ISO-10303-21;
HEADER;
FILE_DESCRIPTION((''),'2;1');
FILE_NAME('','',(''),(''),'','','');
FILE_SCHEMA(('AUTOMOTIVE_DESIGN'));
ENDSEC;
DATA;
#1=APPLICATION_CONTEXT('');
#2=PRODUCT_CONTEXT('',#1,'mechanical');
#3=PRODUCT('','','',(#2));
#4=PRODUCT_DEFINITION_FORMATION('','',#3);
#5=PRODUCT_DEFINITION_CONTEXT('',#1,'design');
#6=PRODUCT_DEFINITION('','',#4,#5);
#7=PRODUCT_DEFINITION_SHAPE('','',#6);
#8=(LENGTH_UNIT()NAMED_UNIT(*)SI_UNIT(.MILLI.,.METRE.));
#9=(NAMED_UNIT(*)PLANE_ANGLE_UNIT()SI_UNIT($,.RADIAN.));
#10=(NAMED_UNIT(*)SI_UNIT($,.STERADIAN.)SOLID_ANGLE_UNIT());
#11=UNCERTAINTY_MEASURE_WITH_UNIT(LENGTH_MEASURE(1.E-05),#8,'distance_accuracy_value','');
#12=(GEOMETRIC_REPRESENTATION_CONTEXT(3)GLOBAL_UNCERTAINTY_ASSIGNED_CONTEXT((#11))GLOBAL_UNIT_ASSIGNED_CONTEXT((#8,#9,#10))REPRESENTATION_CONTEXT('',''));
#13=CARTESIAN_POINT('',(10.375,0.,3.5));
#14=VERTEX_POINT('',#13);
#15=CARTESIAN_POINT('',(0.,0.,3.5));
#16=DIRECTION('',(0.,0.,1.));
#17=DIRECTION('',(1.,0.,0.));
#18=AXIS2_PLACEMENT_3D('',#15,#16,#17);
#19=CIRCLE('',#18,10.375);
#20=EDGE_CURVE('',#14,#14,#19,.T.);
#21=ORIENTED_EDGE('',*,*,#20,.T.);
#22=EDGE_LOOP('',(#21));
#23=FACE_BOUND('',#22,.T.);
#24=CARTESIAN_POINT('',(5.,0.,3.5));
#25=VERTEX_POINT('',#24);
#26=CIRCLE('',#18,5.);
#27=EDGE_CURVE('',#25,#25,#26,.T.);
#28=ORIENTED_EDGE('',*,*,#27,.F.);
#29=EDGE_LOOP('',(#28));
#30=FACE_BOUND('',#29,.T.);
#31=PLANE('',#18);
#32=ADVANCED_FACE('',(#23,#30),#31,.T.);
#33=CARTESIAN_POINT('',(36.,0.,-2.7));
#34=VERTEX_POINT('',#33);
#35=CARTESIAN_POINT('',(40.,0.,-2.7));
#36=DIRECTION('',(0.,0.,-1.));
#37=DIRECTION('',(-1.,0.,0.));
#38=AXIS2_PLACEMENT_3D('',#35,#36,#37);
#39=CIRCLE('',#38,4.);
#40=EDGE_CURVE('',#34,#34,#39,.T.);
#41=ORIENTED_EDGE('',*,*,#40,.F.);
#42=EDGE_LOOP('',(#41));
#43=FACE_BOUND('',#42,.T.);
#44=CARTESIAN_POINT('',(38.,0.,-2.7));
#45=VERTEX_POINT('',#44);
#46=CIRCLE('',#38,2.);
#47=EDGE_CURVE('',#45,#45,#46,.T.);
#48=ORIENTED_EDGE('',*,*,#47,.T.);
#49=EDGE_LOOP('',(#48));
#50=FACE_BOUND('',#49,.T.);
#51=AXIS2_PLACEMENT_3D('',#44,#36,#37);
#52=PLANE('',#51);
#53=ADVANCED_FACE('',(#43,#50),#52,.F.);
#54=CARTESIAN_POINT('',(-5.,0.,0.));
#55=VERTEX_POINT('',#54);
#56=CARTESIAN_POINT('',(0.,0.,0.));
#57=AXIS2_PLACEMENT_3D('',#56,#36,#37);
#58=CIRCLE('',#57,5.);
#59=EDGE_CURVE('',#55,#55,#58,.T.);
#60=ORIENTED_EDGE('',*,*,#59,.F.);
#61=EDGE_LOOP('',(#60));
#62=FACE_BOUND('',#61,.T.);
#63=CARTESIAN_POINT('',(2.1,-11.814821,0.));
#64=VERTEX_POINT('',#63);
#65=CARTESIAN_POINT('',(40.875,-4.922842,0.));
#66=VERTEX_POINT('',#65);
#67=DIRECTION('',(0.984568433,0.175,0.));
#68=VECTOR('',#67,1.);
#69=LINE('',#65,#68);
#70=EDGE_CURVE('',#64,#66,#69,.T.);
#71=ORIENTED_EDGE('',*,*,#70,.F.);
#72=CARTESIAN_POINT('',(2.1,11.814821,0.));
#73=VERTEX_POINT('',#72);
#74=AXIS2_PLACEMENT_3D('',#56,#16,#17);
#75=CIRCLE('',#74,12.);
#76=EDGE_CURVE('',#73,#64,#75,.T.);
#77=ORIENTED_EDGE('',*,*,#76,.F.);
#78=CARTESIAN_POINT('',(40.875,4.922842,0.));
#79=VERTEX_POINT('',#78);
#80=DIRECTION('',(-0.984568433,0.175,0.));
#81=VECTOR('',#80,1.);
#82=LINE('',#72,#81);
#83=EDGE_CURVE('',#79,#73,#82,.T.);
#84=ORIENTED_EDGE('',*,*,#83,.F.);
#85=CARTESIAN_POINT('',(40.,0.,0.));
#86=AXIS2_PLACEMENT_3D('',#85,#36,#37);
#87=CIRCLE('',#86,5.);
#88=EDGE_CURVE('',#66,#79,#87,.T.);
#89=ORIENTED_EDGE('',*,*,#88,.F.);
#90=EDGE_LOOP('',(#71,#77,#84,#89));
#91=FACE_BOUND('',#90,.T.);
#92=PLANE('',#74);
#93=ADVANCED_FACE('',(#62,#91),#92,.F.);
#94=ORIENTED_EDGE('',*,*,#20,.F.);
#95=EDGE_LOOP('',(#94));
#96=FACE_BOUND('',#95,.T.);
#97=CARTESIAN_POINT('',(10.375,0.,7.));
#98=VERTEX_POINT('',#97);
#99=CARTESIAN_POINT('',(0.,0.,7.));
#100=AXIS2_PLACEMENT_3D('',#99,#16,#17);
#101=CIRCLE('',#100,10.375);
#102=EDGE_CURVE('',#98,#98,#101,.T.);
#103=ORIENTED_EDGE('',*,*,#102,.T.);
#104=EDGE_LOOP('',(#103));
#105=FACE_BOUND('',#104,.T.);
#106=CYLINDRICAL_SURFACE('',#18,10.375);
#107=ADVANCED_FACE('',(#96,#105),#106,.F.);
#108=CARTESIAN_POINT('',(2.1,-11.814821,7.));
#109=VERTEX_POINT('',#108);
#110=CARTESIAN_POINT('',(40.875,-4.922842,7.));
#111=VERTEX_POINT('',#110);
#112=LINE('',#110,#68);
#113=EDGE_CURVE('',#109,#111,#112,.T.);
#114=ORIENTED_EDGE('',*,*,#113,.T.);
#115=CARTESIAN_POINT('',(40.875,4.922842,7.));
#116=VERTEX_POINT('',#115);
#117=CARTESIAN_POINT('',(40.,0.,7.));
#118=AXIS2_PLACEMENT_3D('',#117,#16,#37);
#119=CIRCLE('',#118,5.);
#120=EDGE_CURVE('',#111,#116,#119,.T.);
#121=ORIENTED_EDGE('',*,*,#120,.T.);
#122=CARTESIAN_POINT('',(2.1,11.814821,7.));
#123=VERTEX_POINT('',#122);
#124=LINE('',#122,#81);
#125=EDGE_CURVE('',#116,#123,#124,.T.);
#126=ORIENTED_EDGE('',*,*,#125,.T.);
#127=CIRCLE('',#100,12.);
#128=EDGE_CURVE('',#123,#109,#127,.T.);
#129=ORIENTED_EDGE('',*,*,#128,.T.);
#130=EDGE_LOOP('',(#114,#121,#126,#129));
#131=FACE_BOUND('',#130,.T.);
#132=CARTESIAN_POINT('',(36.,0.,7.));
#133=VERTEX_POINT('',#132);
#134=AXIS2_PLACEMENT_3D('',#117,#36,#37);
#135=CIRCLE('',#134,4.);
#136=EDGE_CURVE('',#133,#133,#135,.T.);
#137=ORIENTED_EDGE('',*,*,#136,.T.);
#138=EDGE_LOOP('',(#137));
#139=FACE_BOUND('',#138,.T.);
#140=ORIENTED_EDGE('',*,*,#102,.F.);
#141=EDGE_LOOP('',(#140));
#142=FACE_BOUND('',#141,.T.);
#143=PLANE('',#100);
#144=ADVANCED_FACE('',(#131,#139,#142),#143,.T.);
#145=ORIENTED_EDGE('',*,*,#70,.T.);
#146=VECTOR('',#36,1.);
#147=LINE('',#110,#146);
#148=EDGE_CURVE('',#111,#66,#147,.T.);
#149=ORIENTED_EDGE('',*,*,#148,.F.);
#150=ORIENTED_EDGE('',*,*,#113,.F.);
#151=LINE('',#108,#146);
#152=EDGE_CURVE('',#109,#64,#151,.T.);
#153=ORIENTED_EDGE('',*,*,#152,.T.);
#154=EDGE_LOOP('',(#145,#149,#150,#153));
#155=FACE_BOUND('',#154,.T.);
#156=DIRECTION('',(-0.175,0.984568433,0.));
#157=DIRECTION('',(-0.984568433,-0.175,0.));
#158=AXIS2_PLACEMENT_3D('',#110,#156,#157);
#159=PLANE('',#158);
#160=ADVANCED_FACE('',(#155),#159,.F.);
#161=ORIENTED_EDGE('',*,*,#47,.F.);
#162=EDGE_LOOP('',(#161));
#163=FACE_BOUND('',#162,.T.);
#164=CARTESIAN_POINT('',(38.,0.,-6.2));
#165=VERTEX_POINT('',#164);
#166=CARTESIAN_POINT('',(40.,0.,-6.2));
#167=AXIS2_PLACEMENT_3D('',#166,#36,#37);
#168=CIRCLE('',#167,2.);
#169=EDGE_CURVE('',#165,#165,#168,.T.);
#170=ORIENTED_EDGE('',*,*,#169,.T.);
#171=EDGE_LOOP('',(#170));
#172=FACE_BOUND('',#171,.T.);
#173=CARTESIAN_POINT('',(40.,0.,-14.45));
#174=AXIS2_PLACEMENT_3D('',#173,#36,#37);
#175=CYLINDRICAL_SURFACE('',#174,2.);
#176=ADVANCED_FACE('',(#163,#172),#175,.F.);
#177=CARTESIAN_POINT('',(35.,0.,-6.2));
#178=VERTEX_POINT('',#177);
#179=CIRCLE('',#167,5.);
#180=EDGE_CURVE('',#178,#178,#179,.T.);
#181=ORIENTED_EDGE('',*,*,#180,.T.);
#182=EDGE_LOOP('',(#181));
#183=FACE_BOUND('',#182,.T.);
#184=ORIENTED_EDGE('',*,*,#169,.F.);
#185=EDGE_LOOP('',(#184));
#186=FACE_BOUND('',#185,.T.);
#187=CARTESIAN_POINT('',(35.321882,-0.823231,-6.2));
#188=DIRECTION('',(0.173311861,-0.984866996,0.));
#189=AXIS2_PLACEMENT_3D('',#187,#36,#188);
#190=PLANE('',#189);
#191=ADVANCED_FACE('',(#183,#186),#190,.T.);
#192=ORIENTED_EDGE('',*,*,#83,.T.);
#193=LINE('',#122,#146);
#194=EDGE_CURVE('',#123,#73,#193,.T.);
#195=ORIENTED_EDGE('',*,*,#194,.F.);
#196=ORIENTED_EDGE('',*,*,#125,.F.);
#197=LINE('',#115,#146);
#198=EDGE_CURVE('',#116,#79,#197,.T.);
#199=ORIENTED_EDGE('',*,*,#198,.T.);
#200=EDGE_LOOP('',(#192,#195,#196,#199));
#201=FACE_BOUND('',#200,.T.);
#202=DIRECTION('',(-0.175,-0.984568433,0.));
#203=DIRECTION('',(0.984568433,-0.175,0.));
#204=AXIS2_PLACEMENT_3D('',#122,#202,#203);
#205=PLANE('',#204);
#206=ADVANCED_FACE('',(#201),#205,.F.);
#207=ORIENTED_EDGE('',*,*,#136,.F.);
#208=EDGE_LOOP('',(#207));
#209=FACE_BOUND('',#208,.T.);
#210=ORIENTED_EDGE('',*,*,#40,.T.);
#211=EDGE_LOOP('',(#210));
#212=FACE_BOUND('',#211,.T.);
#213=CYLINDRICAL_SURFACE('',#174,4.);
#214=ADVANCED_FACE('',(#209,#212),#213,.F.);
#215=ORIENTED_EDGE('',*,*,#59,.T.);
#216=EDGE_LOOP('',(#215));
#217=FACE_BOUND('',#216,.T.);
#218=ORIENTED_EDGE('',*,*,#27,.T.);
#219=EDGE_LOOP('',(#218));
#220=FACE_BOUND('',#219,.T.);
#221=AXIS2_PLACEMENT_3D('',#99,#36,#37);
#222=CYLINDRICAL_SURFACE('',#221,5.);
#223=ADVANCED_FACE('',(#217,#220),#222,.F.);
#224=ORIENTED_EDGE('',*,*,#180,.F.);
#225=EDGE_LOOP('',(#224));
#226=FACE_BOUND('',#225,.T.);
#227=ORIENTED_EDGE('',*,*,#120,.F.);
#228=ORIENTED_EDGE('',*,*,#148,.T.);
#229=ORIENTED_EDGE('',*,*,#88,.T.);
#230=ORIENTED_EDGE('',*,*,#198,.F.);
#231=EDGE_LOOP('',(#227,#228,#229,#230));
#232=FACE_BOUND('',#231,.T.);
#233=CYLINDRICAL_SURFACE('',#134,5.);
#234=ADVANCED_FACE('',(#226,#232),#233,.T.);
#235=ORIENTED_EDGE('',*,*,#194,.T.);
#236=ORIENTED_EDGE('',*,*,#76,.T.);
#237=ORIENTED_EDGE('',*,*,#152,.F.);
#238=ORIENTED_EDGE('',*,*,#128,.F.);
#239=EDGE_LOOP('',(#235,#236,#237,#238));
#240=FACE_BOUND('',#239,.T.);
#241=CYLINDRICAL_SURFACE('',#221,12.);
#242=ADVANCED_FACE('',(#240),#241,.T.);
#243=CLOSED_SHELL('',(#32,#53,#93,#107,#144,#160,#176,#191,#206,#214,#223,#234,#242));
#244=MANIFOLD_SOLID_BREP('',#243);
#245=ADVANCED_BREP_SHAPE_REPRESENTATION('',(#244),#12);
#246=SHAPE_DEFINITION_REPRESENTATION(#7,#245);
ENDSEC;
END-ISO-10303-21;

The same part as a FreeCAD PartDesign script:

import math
import FreeCAD as App
import Part
import Sketcher
Q = App.Units.Quantity

doc = App.newDocument("Part")
body = doc.addObject("PartDesign::Body", "Body")

# Sketch on XY plane
sketch1 = doc.addObject("Sketcher::SketchObject", "Sketch")
body.addObject(sketch1)
sketch1.AttachmentSupport = (doc.XY_Plane, [""])
sketch1.MapMode = "FlatFace"
sketch1.addGeometry(Part.LineSegment(App.Vector(41, 5, 0), App.Vector(2, 12, 0)), False)
sketch1.addGeometry(Part.ArcOfCircle(Part.Circle(App.Vector(0, 0, 0), App.Vector(0, 0, 1), 12), math.radians(80), math.radians(280)), False)
sketch1.addGeometry(Part.LineSegment(App.Vector(2, -12, 0), App.Vector(41, -5, 0)), False)
sketch1.addGeometry(Part.ArcOfCircle(Part.Circle(App.Vector(40, 0, 0), App.Vector(0, 0, 1), 5), math.radians(-80), math.radians(80)), False)
sketch1.addConstraint(Sketcher.Constraint("Tangent", 0, 2, 1, 1))
sketch1.addConstraint(Sketcher.Constraint("Tangent", 1, 2, 2, 1))
sketch1.addConstraint(Sketcher.Constraint("Tangent", 2, 2, 3, 1))
sketch1.addConstraint(Sketcher.Constraint("Tangent", 3, 2, 0, 1))
sketch1.addConstraint(Sketcher.Constraint("Coincident", 1, 3, -1, 1))
sketch1.addConstraint(Sketcher.Constraint("PointOnObject", 3, 3, -1))
sketch1.addConstraint(Sketcher.Constraint("Radius", 1, Q("12 mm")))
sketch1.addConstraint(Sketcher.Constraint("Radius", 3, Q("5 mm")))
sketch1.addConstraint(Sketcher.Constraint("DistanceX", -1, 1, 3, 3, Q("40 mm")))
pad1 = doc.addObject("PartDesign::Pad", "Pad")
body.addObject(pad1)
pad1.Profile = sketch1
pad1.Length = 7

# Sketch on XY plane
sketch2 = doc.addObject("Sketcher::SketchObject", "Sketch001")
body.addObject(sketch2)
sketch2.AttachmentSupport = (doc.XY_Plane, [""])
sketch2.MapMode = "FlatFace"
sketch2.AttachmentOffset = App.Placement(App.Vector(0, 0, 7), App.Rotation())
sketch2.addGeometry(Part.Circle(App.Vector(0, 0, 0), App.Vector(0, 0, 1), 10), False)
sketch2.addConstraint(Sketcher.Constraint("Coincident", 0, 3, -1, 1))
sketch2.addConstraint(Sketcher.Constraint("Diameter", 0, Q("20.75 mm")))
pocket1 = doc.addObject("PartDesign::Pocket", "Pocket")
body.addObject(pocket1)
pocket1.Profile = sketch2
pocket1.Length = 3.5

# Sketch on XY plane
sketch3 = doc.addObject("Sketcher::SketchObject", "Sketch002")
body.addObject(sketch3)
sketch3.AttachmentSupport = (doc.XY_Plane, [""])
sketch3.MapMode = "FlatFace"
sketch3.addGeometry(Part.Circle(App.Vector(0, 0, 0), App.Vector(0, 0, 1), 5), False)
sketch3.addConstraint(Sketcher.Constraint("Coincident", 0, 3, -1, 1))
sketch3.addConstraint(Sketcher.Constraint("Diameter", 0, Q("10 mm")))
pocket2 = doc.addObject("PartDesign::Pocket", "Pocket001")
body.addObject(pocket2)
pocket2.Profile = sketch3
pocket2.Type = "ThroughAll"
pocket2.Reversed = True

# Sketch on XY plane
sketch4 = doc.addObject("Sketcher::SketchObject", "Sketch003")
body.addObject(sketch4)
sketch4.AttachmentSupport = (doc.XY_Plane, [""])
sketch4.MapMode = "FlatFace"
sketch4.AttachmentOffset = App.Placement(App.Vector(0, 0, -6.2), App.Rotation())
sketch4.addGeometry(Part.Circle(App.Vector(40, 0, 0), App.Vector(0, 0, 1), 5), False)
sketch4.addConstraint(Sketcher.Constraint("PointOnObject", 0, 3, -1))
sketch4.addConstraint(Sketcher.Constraint("Diameter", 0, Q("10 mm")))
sketch4.addConstraint(Sketcher.Constraint("DistanceX", -1, 1, 0, 3, Q("40 mm")))
pad2 = doc.addObject("PartDesign::Pad", "Pad001")
body.addObject(pad2)
pad2.Profile = sketch4
pad2.Length = 6.2

# Sketch on XZ plane
sketch5 = doc.addObject("Sketcher::SketchObject", "Sketch004")
body.addObject(sketch5)
sketch5.AttachmentSupport = (doc.XZ_Plane, [""])
sketch5.MapMode = "FlatFace"
sketch5.addGeometry(Part.LineSegment(App.Vector(40, -6.2, 0), App.Vector(38, -6.2, 0)), False)
sketch5.addGeometry(Part.LineSegment(App.Vector(38, -6.2, 0), App.Vector(38, -2.7, 0)), False)
sketch5.addGeometry(Part.LineSegment(App.Vector(38, -2.7, 0), App.Vector(36, -2.7, 0)), False)
sketch5.addGeometry(Part.LineSegment(App.Vector(36, -2.7, 0), App.Vector(36, 7, 0)), False)
sketch5.addGeometry(Part.LineSegment(App.Vector(36, 7, 0), App.Vector(40, 7, 0)), False)
sketch5.addGeometry(Part.LineSegment(App.Vector(40, 7, 0), App.Vector(40, -6.2, 0)), False)
sketch5.addGeometry(Part.LineSegment(App.Vector(40, -6.2, 0), App.Vector(40, 7, 0)), True)  # axis
sketch5.addConstraint(Sketcher.Constraint("Coincident", 0, 2, 1, 1))
sketch5.addConstraint(Sketcher.Constraint("Coincident", 1, 2, 2, 1))
sketch5.addConstraint(Sketcher.Constraint("Coincident", 2, 2, 3, 1))
sketch5.addConstraint(Sketcher.Constraint("Coincident", 3, 2, 4, 1))
sketch5.addConstraint(Sketcher.Constraint("Coincident", 4, 2, 5, 1))
sketch5.addConstraint(Sketcher.Constraint("Coincident", 5, 2, 0, 1))
sketch5.addConstraint(Sketcher.Constraint("Horizontal", 0))
sketch5.addConstraint(Sketcher.Constraint("Vertical", 1))
sketch5.addConstraint(Sketcher.Constraint("Horizontal", 2))
sketch5.addConstraint(Sketcher.Constraint("Vertical", 3))
sketch5.addConstraint(Sketcher.Constraint("Horizontal", 4))
sketch5.addConstraint(Sketcher.Constraint("Vertical", 5))
sketch5.addConstraint(Sketcher.Constraint("Vertical", 6))
sketch5.addConstraint(Sketcher.Constraint("Coincident", 6, 1, 5, 2))
sketch5.addConstraint(Sketcher.Constraint("Horizontal", 3, 2, 6, 2))
sketch5.addConstraint(Sketcher.Constraint("Equal", 0, 2))
sketch5.addConstraint(Sketcher.Constraint("DistanceX", 0, 2, 0, 1, Q("2 mm")))
sketch5.addConstraint(Sketcher.Constraint("DistanceY", 1, 1, 1, 2, Q("3.5 mm")))
sketch5.addConstraint(Sketcher.Constraint("DistanceY", 3, 1, 3, 2, Q("9.7 mm")))
sketch5.addConstraint(Sketcher.Constraint("DistanceX", -1, 1, 0, 2, Q("38 mm")))
sketch5.addConstraint(Sketcher.Constraint("DistanceY", -1, 1, 3, 2, Q("7 mm")))
groove = doc.addObject("PartDesign::Groove", "Groove")
body.addObject(groove)
groove.Profile = sketch5
groove.ReferenceAxis = (sketch5, ["Axis0"])
groove.Angle = 360

doc.recompute()
